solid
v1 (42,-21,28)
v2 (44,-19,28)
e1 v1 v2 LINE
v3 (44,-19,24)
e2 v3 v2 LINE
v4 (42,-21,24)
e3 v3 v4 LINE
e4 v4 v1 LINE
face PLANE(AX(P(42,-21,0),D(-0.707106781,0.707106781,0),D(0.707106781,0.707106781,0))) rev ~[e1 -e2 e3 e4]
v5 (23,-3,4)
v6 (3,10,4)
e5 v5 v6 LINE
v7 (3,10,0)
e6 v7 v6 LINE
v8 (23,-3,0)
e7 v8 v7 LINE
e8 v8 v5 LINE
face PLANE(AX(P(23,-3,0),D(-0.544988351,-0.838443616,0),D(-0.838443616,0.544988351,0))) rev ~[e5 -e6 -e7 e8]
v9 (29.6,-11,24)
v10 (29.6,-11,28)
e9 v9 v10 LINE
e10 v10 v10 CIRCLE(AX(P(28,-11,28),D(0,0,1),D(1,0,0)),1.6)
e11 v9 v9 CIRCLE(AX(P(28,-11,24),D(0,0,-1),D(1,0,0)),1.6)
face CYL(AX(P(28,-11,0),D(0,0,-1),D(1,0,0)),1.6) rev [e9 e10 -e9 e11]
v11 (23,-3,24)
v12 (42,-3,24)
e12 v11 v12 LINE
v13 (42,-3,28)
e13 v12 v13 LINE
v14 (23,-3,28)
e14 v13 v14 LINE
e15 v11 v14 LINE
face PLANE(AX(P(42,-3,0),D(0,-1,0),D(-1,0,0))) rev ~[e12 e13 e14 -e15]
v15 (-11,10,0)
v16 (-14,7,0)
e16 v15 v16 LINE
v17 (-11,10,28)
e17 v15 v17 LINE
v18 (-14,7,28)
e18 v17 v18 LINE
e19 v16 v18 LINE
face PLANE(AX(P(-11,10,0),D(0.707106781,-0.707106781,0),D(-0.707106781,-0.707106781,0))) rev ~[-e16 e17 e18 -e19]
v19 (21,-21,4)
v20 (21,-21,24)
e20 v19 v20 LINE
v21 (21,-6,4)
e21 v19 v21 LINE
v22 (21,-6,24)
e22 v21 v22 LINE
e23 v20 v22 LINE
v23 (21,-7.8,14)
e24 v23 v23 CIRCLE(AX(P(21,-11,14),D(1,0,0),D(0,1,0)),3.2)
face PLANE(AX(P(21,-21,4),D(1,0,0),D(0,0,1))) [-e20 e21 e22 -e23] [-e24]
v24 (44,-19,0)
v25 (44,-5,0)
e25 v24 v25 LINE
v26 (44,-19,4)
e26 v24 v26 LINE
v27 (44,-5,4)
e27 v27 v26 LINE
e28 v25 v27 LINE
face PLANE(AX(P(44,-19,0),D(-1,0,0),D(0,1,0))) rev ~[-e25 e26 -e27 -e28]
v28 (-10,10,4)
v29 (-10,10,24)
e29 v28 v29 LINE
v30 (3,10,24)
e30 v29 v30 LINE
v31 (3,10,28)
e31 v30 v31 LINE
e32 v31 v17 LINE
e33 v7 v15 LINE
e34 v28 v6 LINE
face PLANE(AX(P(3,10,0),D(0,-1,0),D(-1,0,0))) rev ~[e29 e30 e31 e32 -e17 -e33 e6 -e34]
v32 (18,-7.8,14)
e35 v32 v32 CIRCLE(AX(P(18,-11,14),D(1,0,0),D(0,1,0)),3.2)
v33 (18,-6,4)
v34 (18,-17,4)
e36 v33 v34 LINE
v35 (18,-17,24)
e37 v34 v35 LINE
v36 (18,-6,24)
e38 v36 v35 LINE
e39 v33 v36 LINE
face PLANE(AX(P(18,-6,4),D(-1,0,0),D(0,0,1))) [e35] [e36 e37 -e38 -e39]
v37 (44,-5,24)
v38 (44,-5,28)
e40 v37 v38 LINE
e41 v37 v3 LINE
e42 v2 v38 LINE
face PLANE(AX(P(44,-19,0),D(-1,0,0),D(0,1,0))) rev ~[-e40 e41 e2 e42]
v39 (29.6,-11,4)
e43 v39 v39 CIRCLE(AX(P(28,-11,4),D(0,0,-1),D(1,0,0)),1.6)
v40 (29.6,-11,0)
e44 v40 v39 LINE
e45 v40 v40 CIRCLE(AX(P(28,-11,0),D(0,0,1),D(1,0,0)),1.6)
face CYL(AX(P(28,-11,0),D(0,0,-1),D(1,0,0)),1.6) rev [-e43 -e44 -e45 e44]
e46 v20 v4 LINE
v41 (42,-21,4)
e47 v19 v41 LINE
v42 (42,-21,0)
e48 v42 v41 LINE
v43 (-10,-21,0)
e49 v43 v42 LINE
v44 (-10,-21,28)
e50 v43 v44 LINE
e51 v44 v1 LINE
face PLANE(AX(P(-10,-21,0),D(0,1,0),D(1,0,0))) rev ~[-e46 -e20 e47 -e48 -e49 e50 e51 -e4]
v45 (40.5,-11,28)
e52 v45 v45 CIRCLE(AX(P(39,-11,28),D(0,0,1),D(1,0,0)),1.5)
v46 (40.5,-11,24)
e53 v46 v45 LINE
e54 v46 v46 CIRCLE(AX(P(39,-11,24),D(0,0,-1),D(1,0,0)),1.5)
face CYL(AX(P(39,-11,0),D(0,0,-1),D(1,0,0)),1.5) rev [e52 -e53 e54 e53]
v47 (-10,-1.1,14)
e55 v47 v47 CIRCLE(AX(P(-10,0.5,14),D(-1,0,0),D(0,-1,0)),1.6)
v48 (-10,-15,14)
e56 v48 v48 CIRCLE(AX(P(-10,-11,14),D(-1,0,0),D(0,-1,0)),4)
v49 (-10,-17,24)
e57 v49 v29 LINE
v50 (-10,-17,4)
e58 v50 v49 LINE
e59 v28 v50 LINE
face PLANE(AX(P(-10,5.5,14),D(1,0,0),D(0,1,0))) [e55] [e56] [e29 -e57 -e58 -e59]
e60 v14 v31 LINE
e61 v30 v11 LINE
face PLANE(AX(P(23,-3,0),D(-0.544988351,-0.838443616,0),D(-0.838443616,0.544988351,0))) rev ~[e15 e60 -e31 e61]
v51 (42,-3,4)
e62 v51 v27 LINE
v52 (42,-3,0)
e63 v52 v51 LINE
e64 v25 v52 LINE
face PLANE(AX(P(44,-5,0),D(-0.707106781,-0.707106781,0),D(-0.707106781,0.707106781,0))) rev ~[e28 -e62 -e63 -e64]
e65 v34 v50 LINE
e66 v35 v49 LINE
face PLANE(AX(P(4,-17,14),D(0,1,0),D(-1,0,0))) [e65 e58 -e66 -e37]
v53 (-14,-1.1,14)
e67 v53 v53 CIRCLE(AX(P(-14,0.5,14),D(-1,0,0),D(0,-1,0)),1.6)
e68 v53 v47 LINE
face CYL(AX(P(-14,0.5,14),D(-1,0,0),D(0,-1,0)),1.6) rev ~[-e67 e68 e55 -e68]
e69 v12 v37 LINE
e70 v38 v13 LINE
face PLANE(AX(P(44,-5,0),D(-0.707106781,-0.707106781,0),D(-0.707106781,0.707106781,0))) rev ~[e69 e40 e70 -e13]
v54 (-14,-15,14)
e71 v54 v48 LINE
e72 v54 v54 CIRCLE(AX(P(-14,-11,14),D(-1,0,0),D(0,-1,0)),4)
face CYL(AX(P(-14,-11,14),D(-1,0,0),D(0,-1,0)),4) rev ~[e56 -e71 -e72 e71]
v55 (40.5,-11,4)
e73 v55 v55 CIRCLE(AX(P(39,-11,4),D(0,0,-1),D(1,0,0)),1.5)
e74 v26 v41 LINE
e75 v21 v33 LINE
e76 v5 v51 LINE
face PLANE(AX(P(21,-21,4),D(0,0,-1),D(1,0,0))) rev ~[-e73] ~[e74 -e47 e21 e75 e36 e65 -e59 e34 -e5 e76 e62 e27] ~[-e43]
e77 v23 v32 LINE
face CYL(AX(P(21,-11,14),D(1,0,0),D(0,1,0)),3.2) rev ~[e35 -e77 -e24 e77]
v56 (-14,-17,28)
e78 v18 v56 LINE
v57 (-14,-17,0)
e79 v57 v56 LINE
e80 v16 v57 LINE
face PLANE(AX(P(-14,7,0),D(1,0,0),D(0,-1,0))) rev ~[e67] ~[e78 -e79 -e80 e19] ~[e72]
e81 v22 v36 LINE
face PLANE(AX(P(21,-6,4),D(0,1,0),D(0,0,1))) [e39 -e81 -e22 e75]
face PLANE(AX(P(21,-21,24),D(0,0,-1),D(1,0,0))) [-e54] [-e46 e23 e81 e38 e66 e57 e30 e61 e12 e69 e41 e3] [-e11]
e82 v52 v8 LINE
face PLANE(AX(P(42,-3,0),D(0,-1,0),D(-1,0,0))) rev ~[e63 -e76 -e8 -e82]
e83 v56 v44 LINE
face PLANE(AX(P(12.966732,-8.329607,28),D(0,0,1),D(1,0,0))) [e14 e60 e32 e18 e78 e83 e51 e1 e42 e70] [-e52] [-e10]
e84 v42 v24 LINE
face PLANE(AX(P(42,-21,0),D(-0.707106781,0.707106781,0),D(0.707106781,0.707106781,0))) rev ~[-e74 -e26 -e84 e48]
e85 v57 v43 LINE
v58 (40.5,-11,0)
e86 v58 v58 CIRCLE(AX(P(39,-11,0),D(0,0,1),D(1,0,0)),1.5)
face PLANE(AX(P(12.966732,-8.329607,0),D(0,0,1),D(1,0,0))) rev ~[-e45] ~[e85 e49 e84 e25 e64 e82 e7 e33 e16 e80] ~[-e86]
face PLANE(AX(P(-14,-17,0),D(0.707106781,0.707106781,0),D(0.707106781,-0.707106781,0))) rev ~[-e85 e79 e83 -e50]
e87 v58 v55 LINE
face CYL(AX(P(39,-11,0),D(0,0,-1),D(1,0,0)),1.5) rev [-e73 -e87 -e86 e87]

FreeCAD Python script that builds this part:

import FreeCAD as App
import Part
import Sketcher
from FreeCAD import Vector


def add_polygon(sketch, points):
    """Adds a closed chain of lines whose ends are joined by coincident constraints."""
    first, n = sketch.GeometryCount, len(points)
    for a, b in zip(points, points[1:] + points[:1]):
        sketch.addGeometry(Part.LineSegment(App.Vector(*a, 0), App.Vector(*b, 0)), False)
    for i in range(n):
        sketch.addConstraint(Sketcher.Constraint("Coincident", first + i, 2, first + (i + 1) % n, 1))

doc = App.newDocument("Part")
body = doc.addObject("PartDesign::Body", "Body")

# Sketch on XY plane
sketch1 = body.newObject("Sketcher::SketchObject", "Sketch")
sketch1.AttachmentSupport = (doc.getObject("XY_Plane"), [""])
sketch1.MapMode = "FlatFace"
add_polygon(sketch1, [(-14, -17), (-10, -21), (42, -21), (44, -19), (44, -5), (42, -3), (23, -3), (3, 10), (-11, 10), (-14, 7)])  # lines 0-9
sketch1.addGeometry(Part.Circle(Vector(28, -11, 0), Vector(0, 0, 1), 1.6), False)  # 10
sketch1.addGeometry(Part.Circle(Vector(39, -11, 0), Vector(0, 0, 1), 1.5), False)  # 11
sketch1.addConstraint([
    Sketcher.Constraint("Horizontal", 1),
    Sketcher.Constraint("Vertical", 3),
    Sketcher.Constraint("Horizontal", 5),
    Sketcher.Constraint("Horizontal", 7),
    Sketcher.Constraint("Vertical", 9),
    Sketcher.Constraint("Perpendicular", 0, 2),
    Sketcher.Constraint("Perpendicular", 2, 4),
    Sketcher.Constraint("Perpendicular", 4, 8),
    Sketcher.Constraint("Horizontal", 10, 3, 11, 3),
    Sketcher.Constraint("Vertical", 1, 2, 4, 2),
    Sketcher.Constraint("Equal", 7, 3),
    Sketcher.Constraint("Equal", 2, 4),
    Sketcher.Constraint("Diameter", 11, 3.0),
    Sketcher.Constraint("Diameter", 10, 3.2),
    Sketcher.Constraint("DistanceX", 1, 1, 1, 2, 52.0),
    Sketcher.Constraint("DistanceX", 5, 2, 5, 1, 19.0),
    Sketcher.Constraint("DistanceX", 7, 2, 7, 1, 14.0),
    Sketcher.Constraint("DistanceY", 9, 2, 9, 1, 24.0),
    Sketcher.Constraint("DistanceX", -1, 1, 10, 3, 28.0),
    Sketcher.Constraint("DistanceY", 10, 3, -1, 1, 11.0),
    Sketcher.Constraint("DistanceX", -1, 1, 11, 3, 39.0),
    Sketcher.Constraint("DistanceX", 0, 2, -1, 1, 10.0),
    Sketcher.Constraint("DistanceY", 0, 2, -1, 1, 21.0),
    Sketcher.Constraint("DistanceX", -1, 1, 2, 2, 44.0),
    Sketcher.Constraint("DistanceX", -1, 1, 6, 2, 3.0),
    Sketcher.Constraint("DistanceY", -1, 1, 6, 2, 10.0),
])
pad1 = body.newObject("PartDesign::Pad", "Pad")
pad1.Profile = sketch1
pad1.Length = 28

# Sketch on XZ plane
sketch2 = body.newObject("Sketcher::SketchObject", "Sketch001")
sketch2.AttachmentSupport = (doc.getObject("XZ_Plane"), [""])
sketch2.MapMode = "FlatFace"
sketch2.AttachmentOffset = App.Placement(Vector(0, 0, 21), App.Rotation())
add_polygon(sketch2, [(21, 24), (21, 4), (50, 4), (50, 24)])  # lines 0-3
sketch2.addConstraint([
    Sketcher.Constraint("Vertical", 0),
    Sketcher.Constraint("Horizontal", 1),
    Sketcher.Constraint("Vertical", 2),
    Sketcher.Constraint("Horizontal", 3),
    Sketcher.Constraint("DistanceX", 1, 1, 1, 2, 29.0),
    Sketcher.Constraint("DistanceY", 0, 2, 0, 1, 20.0),
    Sketcher.Constraint("DistanceX", -1, 1, 0, 2, 21.0),
    Sketcher.Constraint("DistanceY", -1, 1, 0, 2, 4.0),
])
pocket1 = body.newObject("PartDesign::Pocket", "Pocket")
pocket1.Profile = sketch2
pocket1.Length = 42

# Sketch on YZ plane
sketch3 = body.newObject("Sketcher::SketchObject", "Sketch002")
sketch3.AttachmentSupport = (doc.getObject("YZ_Plane"), [""])
sketch3.MapMode = "FlatFace"
sketch3.AttachmentOffset = App.Placement(Vector(0, 0, 21), App.Rotation())
add_polygon(sketch3, [(-6, 24), (-6, 4), (17, 4), (17, 24)])  # lines 0-3
sketch3.addConstraint([
    Sketcher.Constraint("Vertical", 0),
    Sketcher.Constraint("Horizontal", 1),
    Sketcher.Constraint("Vertical", 2),
    Sketcher.Constraint("Horizontal", 3),
    Sketcher.Constraint("DistanceX", 1, 1, 1, 2, 23.0),
    Sketcher.Constraint("DistanceY", 0, 2, 0, 1, 20.0),
    Sketcher.Constraint("DistanceX", 0, 2, -1, 1, 6.0),
    Sketcher.Constraint("DistanceY", -1, 1, 0, 2, 4.0),
])
pocket2 = body.newObject("PartDesign::Pocket", "Pocket001")
pocket2.Profile = sketch3
pocket2.Length = 31

# Sketch on XZ plane
sketch4 = body.newObject("Sketcher::SketchObject", "Sketch003")
sketch4.AttachmentSupport = (doc.getObject("XZ_Plane"), [""])
sketch4.MapMode = "FlatFace"
sketch4.AttachmentOffset = App.Placement(Vector(0, 0, 6), App.Rotation())
add_polygon(sketch4, [(18, 24), (18, 4), (-10, 4), (-10, 24)])  # lines 0-3
sketch4.addConstraint([
    Sketcher.Constraint("Vertical", 0),
    Sketcher.Constraint("Horizontal", 1),
    Sketcher.Constraint("Vertical", 2),
    Sketcher.Constraint("Horizontal", 3),
    Sketcher.Constraint("DistanceX", 1, 2, 1, 1, 28.0),
    Sketcher.Constraint("DistanceY", 0, 2, 0, 1, 20.0),
    Sketcher.Constraint("DistanceX", -1, 1, 0, 2, 18.0),
    Sketcher.Constraint("DistanceY", -1, 1, 0, 2, 4.0),
])
pocket3 = body.newObject("PartDesign::Pocket", "Pocket002")
pocket3.Profile = sketch4
pocket3.Length = 11
pocket3.Reversed = True

# Sketch on YZ plane
sketch5 = body.newObject("Sketcher::SketchObject", "Sketch004")
sketch5.AttachmentSupport = (doc.getObject("YZ_Plane"), [""])
sketch5.MapMode = "FlatFace"
sketch5.AttachmentOffset = App.Placement(Vector(0, 0, 21), App.Rotation())
sketch5.addGeometry(Part.Circle(Vector(-11, 14, 0), Vector(0, 0, 1), 3.2), False)
sketch5.addConstraint([
    Sketcher.Constraint("Diameter", 0, 6.4),
    Sketcher.Constraint("DistanceX", 0, 3, -1, 1, 11.0),
    Sketcher.Constraint("DistanceY", -1, 1, 0, 3, 14.0),
])
pocket4 = body.newObject("PartDesign::Pocket", "Pocket003")
pocket4.Profile = sketch5
pocket4.Length = 5

# Sketch on YZ plane
sketch6 = body.newObject("Sketcher::SketchObject", "Sketch005")
sketch6.AttachmentSupport = (doc.getObject("YZ_Plane"), [""])
sketch6.MapMode = "FlatFace"
sketch6.AttachmentOffset = App.Placement(Vector(0, 0, -14), App.Rotation())
sketch6.addGeometry([
    Part.Circle(Vector(-11, 14, 0), Vector(0, 0, 1), 4),
    Part.Circle(Vector(0.5, 14, 0), Vector(0, 0, 1), 1.6),
], False)
sketch6.addConstraint([
    Sketcher.Constraint("Horizontal", 0, 3, 1, 3),
    Sketcher.Constraint("Diameter", 0, 8.0),
    Sketcher.Constraint("Diameter", 1, 3.2),
    Sketcher.Constraint("DistanceX", 0, 3, -1, 1, 11.0),
    Sketcher.Constraint("DistanceY", -1, 1, 0, 3, 14.0),
    Sketcher.Constraint("DistanceX", -1, 1, 1, 3, 0.5),
])
pocket5 = body.newObject("PartDesign::Pocket", "Pocket004")
pocket5.Profile = sketch6
pocket5.Length = 5
pocket5.Reversed = True

doc.recompute()
